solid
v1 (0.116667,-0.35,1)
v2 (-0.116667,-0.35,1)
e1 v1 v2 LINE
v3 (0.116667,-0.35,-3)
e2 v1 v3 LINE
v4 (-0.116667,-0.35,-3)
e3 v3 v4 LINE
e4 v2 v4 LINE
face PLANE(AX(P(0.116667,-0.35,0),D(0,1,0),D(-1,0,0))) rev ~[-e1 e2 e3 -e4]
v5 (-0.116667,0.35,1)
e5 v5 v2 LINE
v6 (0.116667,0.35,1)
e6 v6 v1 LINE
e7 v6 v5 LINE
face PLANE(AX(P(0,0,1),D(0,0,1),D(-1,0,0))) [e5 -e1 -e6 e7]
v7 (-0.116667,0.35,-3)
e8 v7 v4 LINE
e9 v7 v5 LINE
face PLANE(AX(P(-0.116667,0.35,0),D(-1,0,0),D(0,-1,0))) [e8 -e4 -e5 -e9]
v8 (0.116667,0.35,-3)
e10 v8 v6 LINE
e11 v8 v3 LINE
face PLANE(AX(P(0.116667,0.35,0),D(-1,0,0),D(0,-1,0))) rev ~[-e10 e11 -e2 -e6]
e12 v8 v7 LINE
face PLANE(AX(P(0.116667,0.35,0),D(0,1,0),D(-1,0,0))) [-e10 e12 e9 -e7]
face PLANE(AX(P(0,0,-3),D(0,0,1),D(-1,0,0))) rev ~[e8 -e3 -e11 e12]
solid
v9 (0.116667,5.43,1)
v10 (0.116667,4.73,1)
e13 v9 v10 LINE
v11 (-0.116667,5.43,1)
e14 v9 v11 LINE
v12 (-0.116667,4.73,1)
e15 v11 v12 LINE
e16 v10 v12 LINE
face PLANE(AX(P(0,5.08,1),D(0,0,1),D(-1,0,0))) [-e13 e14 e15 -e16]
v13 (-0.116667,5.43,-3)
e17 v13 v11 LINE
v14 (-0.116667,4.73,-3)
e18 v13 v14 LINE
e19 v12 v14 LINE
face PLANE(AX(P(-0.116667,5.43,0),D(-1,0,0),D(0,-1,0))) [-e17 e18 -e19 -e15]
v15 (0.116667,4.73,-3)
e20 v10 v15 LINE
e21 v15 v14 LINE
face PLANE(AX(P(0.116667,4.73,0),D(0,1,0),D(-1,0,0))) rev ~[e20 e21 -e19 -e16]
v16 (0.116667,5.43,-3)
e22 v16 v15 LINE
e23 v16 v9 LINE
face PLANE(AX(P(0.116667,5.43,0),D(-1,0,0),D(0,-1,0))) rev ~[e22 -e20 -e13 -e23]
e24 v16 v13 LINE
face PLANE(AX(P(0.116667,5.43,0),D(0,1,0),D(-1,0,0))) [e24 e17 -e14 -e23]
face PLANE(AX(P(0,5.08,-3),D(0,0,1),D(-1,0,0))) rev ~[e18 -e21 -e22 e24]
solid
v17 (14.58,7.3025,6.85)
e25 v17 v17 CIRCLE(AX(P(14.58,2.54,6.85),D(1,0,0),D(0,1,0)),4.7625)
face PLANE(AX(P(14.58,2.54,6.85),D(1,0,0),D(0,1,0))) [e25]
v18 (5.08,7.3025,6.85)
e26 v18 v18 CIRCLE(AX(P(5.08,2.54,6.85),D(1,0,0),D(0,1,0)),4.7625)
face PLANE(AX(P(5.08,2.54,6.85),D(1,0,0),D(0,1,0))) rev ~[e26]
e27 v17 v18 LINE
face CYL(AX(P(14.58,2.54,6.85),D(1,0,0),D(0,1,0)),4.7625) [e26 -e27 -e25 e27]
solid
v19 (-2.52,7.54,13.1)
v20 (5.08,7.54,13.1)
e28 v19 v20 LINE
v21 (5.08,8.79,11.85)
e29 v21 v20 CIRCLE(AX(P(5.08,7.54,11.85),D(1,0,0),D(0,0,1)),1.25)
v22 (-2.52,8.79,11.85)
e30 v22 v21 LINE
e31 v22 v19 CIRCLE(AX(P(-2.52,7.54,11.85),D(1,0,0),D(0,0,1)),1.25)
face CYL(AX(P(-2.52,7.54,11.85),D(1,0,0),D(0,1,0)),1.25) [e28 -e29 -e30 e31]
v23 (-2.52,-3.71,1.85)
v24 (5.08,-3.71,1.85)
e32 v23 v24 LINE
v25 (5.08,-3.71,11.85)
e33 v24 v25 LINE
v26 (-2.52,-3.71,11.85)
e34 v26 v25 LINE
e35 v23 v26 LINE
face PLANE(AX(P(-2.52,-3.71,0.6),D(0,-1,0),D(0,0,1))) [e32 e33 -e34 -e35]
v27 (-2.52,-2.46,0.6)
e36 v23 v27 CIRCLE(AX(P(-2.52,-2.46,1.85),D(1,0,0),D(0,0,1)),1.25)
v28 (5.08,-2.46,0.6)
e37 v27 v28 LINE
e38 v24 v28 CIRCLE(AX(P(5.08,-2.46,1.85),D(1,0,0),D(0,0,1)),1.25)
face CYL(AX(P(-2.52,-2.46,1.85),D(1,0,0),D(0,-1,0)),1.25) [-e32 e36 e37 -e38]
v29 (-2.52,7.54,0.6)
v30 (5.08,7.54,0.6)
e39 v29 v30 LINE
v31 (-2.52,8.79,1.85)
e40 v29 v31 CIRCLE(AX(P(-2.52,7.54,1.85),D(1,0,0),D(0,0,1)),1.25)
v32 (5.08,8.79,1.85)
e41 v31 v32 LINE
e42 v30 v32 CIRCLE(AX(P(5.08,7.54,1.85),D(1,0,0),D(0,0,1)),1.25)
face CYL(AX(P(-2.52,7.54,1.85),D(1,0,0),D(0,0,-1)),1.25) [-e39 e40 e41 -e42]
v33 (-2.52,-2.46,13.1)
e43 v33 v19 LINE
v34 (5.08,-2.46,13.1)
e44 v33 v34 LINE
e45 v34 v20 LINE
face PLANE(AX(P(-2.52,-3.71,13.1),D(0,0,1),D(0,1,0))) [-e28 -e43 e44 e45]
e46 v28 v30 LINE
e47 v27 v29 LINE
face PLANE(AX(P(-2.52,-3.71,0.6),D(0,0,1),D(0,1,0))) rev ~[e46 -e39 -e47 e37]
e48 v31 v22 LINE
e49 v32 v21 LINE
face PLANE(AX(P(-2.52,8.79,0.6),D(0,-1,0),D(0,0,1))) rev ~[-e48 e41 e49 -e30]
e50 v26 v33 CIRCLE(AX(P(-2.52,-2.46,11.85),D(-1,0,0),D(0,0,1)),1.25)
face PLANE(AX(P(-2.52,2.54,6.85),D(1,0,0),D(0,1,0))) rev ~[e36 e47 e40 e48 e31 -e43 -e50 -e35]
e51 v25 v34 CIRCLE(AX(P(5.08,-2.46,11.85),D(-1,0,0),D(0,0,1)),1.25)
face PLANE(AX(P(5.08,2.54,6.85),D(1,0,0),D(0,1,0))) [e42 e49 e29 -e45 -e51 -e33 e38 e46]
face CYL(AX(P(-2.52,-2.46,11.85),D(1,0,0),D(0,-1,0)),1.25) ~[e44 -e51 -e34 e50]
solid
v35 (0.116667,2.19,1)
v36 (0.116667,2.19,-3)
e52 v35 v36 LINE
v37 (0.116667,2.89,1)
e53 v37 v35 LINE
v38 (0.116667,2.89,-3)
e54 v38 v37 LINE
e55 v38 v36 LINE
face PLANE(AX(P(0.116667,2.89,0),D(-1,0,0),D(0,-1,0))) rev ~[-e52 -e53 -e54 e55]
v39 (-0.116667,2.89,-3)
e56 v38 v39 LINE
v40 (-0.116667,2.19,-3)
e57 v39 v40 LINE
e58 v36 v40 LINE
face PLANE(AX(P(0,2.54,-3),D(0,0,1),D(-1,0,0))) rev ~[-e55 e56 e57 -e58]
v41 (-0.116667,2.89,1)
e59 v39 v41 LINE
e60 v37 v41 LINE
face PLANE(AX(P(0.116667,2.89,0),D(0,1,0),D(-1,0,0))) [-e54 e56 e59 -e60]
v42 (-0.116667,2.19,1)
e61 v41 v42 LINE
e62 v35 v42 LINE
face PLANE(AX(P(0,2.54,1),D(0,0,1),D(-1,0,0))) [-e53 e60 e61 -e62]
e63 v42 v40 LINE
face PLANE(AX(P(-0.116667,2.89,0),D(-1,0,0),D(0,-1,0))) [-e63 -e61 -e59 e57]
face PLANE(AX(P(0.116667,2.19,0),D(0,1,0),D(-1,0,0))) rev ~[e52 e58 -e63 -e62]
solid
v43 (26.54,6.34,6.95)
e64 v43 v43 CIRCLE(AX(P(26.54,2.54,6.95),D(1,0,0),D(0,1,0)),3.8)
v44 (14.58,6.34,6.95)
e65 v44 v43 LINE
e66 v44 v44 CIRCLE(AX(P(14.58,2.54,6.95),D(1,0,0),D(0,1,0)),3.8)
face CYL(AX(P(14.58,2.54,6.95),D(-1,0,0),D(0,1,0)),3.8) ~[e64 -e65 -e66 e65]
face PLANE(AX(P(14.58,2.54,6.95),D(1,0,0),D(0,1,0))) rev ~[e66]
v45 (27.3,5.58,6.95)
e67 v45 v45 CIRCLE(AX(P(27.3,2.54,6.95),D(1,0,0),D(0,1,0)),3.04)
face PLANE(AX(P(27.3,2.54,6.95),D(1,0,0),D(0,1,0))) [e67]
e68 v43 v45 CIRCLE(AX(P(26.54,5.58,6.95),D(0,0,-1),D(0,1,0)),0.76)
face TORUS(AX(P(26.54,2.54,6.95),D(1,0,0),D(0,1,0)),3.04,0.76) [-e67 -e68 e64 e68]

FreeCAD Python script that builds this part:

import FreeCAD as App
import Part
import Sketcher
from FreeCAD import Vector
Q = App.Units.Quantity


def edges_at(feature, points):
    """Names of the edges that pass closest to the given points."""
    edges = feature.Shape.Edges
    near = lambda p: min(range(len(edges)), key=lambda i: edges[i].distToShape(Part.Vertex(*p))[0])
    return sorted({f"Edge{near(p) + 1}" for p in points})

doc = App.newDocument("Part")
body = doc.addObject("PartDesign::Body", "Body")

sketch1 = body.newObject("Sketcher::SketchObject", "Sketch")
sketch1.AttachmentSupport = (doc.getObject("YZ_Plane"), [""])
sketch1.MapMode = "FlatFace"
sketch1.AttachmentOffset = App.Placement(Vector(0, 0, 14.58), App.Rotation())
sketch1.addGeometry(Part.Circle(Vector(2.5, 6.8, 0), Vector(0, 0, 1), 4.8), False)
sketch1.addConstraint(Sketcher.Constraint("Diameter", 0, Q("9.525 mm")))
sketch1.addConstraint(Sketcher.Constraint("DistanceX", -1, 1, 0, 3, Q("2.54 mm")))
sketch1.addConstraint(Sketcher.Constraint("DistanceY", -1, 1, 0, 3, Q("6.85 mm")))
pad1 = body.newObject("PartDesign::Pad", "Pad")
pad1.Profile = sketch1
pad1.Length = 9.5
pad1.Reversed = True
body2 = doc.addObject("PartDesign::Body", "Body001")
body2.AllowCompound = True

sketch2 = body2.newObject("Sketcher::SketchObject", "Sketch001")
sketch2.AttachmentSupport = (doc.getObject("XY_Plane001"), [""])
sketch2.MapMode = "FlatFace"
sketch2.addGeometry(Part.LineSegment(Vector(0.12, -0.35, 0), Vector(0.12, 0.35, 0)), False)
sketch2.addGeometry(Part.LineSegment(Vector(0.12, 0.35, 0), Vector(-0.12, 0.35, 0)), False)
sketch2.addGeometry(Part.LineSegment(Vector(-0.12, 0.35, 0), Vector(-0.12, -0.35, 0)), False)
sketch2.addGeometry(Part.LineSegment(Vector(-0.12, -0.35, 0), Vector(0.12, -0.35, 0)), False)
sketch2.addGeometry(Part.LineSegment(Vector(0.12, 2.19, 0), Vector(0.12, 2.89, 0)), False)
sketch2.addGeometry(Part.LineSegment(Vector(0.12, 2.89, 0), Vector(-0.12, 2.89, 0)), False)
sketch2.addGeometry(Part.LineSegment(Vector(-0.12, 2.89, 0), Vector(-0.12, 2.19, 0)), False)
sketch2.addGeometry(Part.LineSegment(Vector(-0.12, 2.19, 0), Vector(0.12, 2.19, 0)), False)
sketch2.addGeometry(Part.LineSegment(Vector(0.12, 4.73, 0), Vector(0.12, 5.43, 0)), False)
sketch2.addGeometry(Part.LineSegment(Vector(0.12, 5.43, 0), Vector(-0.12, 5.43, 0)), False)
sketch2.addGeometry(Part.LineSegment(Vector(-0.12, 5.43, 0), Vector(-0.12, 4.73, 0)), False)
sketch2.addGeometry(Part.LineSegment(Vector(-0.12, 4.73, 0), Vector(0.12, 4.73, 0)), False)
sketch2.addConstraint(Sketcher.Constraint("Coincident", 0, 2, 1, 1))
sketch2.addConstraint(Sketcher.Constraint("Coincident", 1, 2, 2, 1))
sketch2.addConstraint(Sketcher.Constraint("Coincident", 2, 2, 3, 1))
sketch2.addConstraint(Sketcher.Constraint("Coincident", 3, 2, 0, 1))
sketch2.addConstraint(Sketcher.Constraint("Coincident", 4, 2, 5, 1))
sketch2.addConstraint(Sketcher.Constraint("Coincident", 5, 2, 6, 1))
sketch2.addConstraint(Sketcher.Constraint("Coincident", 6, 2, 7, 1))
sketch2.addConstraint(Sketcher.Constraint("Coincident", 7, 2, 4, 1))
sketch2.addConstraint(Sketcher.Constraint("Coincident", 8, 2, 9, 1))
sketch2.addConstraint(Sketcher.Constraint("Coincident", 9, 2, 10, 1))
sketch2.addConstraint(Sketcher.Constraint("Coincident", 10, 2, 11, 1))
sketch2.addConstraint(Sketcher.Constraint("Coincident", 11, 2, 8, 1))
sketch2.addConstraint(Sketcher.Constraint("Vertical", 0))
sketch2.addConstraint(Sketcher.Constraint("Horizontal", 1))
sketch2.addConstraint(Sketcher.Constraint("Vertical", 2))
sketch2.addConstraint(Sketcher.Constraint("Horizontal", 3))
sketch2.addConstraint(Sketcher.Constraint("Vertical", 4))
sketch2.addConstraint(Sketcher.Constraint("Horizontal", 5))
sketch2.addConstraint(Sketcher.Constraint("Vertical", 6))
sketch2.addConstraint(Sketcher.Constraint("Horizontal", 7))
sketch2.addConstraint(Sketcher.Constraint("Vertical", 8))
sketch2.addConstraint(Sketcher.Constraint("Horizontal", 9))
sketch2.addConstraint(Sketcher.Constraint("Vertical", 10))
sketch2.addConstraint(Sketcher.Constraint("Horizontal", 11))
sketch2.addConstraint(Sketcher.Constraint("Symmetric", 0, 2, 2, 2, -1, 1))
sketch2.addConstraint(Sketcher.Constraint("Vertical", 3, 2, 4, 2))
sketch2.addConstraint(Sketcher.Constraint("Vertical", 2, 2, 5, 2))
sketch2.addConstraint(Sketcher.Constraint("Vertical", 7, 2, 8, 2))
sketch2.addConstraint(Sketcher.Constraint("Vertical", 6, 2, 9, 2))
sketch2.addConstraint(Sketcher.Constraint("Equal", 2, 4))
sketch2.addConstraint(Sketcher.Constraint("Equal", 6, 8))
sketch2.addConstraint(Sketcher.Constraint("DistanceY", 0, 1, 0, 2, Q("0.7 mm")))
sketch2.addConstraint(Sketcher.Constraint("DistanceY", -1, 1, 4, 2, Q("2.89 mm")))
sketch2.addConstraint(Sketcher.Constraint("DistanceY", -1, 1, 8, 2, Q("5.43 mm")))
sketch2.addConstraint(Sketcher.Constraint("DistanceX", 1, 2, 1, 1, Q("0.233334 mm")))
pad2 = body2.newObject("PartDesign::Pad", "Pad001")
pad2.Profile = sketch2
pad2.Type = "TwoLengths"
pad2.Length = 1
pad2.Length2 = 3
body3 = doc.addObject("PartDesign::Body", "Body002")

sketch3 = body3.newObject("Sketcher::SketchObject", "Sketch002")
sketch3.AttachmentSupport = (doc.getObject("YZ_Plane002"), [""])
sketch3.MapMode = "FlatFace"
sketch3.AttachmentOffset = App.Placement(Vector(0, 0, 14.58), App.Rotation())
sketch3.addGeometry(Part.Circle(Vector(2.5, 7, 0), Vector(0, 0, 1), 3.8), False)
sketch3.addConstraint(Sketcher.Constraint("Diameter", 0, Q("7.6 mm")))
sketch3.addConstraint(Sketcher.Constraint("DistanceX", -1, 1, 0, 3, Q("2.54 mm")))
sketch3.addConstraint(Sketcher.Constraint("DistanceY", -1, 1, 0, 3, Q("6.95 mm")))
pad3 = body3.newObject("PartDesign::Pad", "Pad002")
pad3.Profile = sketch3
pad3.Length = 12.72
doc.recompute()

fillet = body3.newObject("PartDesign::Fillet", "Fillet")
fillet.Base = (pad3, edges_at(pad3, [(27.3, -1.26, 6.95)]))
fillet.Radius = 0.76
body4 = doc.addObject("PartDesign::Body", "Body003")

sketch4 = body4.newObject("Sketcher::SketchObject", "Sketch003")
sketch4.AttachmentSupport = (doc.getObject("YZ_Plane003"), [""])
sketch4.MapMode = "FlatFace"
sketch4.AttachmentOffset = App.Placement(Vector(0, 0, -2.52), App.Rotation())
sketch4.addGeometry(Part.LineSegment(Vector(-4, 13, 0), Vector(-4, 1, 0)), False)
sketch4.addGeometry(Part.LineSegment(Vector(-4, 1, 0), Vector(9, 1, 0)), False)
sketch4.addGeometry(Part.LineSegment(Vector(9, 1, 0), Vector(9, 13, 0)), False)
sketch4.addGeometry(Part.LineSegment(Vector(9, 13, 0), Vector(-4, 13, 0)), False)
sketch4.addConstraint(Sketcher.Constraint("Coincident", 0, 2, 1, 1))
sketch4.addConstraint(Sketcher.Constraint("Coincident", 1, 2, 2, 1))
sketch4.addConstraint(Sketcher.Constraint("Coincident", 2, 2, 3, 1))
sketch4.addConstraint(Sketcher.Constraint("Coincident", 3, 2, 0, 1))
sketch4.addConstraint(Sketcher.Constraint("Vertical", 0))
sketch4.addConstraint(Sketcher.Constraint("Horizontal", 1))
sketch4.addConstraint(Sketcher.Constraint("Vertical", 2))
sketch4.addConstraint(Sketcher.Constraint("Horizontal", 3))
sketch4.addConstraint(Sketcher.Constraint("Equal", 3, 0))
sketch4.addConstraint(Sketcher.Constraint("DistanceX", 1, 1, 1, 2, Q("12.5 mm")))
sketch4.addConstraint(Sketcher.Constraint("DistanceY", -1, 1, 0, 2, Q("0.6 mm")))
sketch4.addConstraint(Sketcher.Constraint("DistanceX", 0, 2, -1, 1, Q("3.71 mm")))
pad4 = body4.newObject("PartDesign::Pad", "Pad003")
pad4.Profile = sketch4
pad4.Length = 7.6
doc.recompute()

fillet2 = body4.newObject("PartDesign::Fillet", "Fillet001")
fillet2.Base = (pad4, edges_at(pad4, [
    (1.28, -3.71, 13.1),
    (1.28, 8.79, 13.1),
    (1.28, -3.71, 0.6),
    (1.28, 8.79, 0.6),
]))
fillet2.Radius = 1.25

doc.recompute()
